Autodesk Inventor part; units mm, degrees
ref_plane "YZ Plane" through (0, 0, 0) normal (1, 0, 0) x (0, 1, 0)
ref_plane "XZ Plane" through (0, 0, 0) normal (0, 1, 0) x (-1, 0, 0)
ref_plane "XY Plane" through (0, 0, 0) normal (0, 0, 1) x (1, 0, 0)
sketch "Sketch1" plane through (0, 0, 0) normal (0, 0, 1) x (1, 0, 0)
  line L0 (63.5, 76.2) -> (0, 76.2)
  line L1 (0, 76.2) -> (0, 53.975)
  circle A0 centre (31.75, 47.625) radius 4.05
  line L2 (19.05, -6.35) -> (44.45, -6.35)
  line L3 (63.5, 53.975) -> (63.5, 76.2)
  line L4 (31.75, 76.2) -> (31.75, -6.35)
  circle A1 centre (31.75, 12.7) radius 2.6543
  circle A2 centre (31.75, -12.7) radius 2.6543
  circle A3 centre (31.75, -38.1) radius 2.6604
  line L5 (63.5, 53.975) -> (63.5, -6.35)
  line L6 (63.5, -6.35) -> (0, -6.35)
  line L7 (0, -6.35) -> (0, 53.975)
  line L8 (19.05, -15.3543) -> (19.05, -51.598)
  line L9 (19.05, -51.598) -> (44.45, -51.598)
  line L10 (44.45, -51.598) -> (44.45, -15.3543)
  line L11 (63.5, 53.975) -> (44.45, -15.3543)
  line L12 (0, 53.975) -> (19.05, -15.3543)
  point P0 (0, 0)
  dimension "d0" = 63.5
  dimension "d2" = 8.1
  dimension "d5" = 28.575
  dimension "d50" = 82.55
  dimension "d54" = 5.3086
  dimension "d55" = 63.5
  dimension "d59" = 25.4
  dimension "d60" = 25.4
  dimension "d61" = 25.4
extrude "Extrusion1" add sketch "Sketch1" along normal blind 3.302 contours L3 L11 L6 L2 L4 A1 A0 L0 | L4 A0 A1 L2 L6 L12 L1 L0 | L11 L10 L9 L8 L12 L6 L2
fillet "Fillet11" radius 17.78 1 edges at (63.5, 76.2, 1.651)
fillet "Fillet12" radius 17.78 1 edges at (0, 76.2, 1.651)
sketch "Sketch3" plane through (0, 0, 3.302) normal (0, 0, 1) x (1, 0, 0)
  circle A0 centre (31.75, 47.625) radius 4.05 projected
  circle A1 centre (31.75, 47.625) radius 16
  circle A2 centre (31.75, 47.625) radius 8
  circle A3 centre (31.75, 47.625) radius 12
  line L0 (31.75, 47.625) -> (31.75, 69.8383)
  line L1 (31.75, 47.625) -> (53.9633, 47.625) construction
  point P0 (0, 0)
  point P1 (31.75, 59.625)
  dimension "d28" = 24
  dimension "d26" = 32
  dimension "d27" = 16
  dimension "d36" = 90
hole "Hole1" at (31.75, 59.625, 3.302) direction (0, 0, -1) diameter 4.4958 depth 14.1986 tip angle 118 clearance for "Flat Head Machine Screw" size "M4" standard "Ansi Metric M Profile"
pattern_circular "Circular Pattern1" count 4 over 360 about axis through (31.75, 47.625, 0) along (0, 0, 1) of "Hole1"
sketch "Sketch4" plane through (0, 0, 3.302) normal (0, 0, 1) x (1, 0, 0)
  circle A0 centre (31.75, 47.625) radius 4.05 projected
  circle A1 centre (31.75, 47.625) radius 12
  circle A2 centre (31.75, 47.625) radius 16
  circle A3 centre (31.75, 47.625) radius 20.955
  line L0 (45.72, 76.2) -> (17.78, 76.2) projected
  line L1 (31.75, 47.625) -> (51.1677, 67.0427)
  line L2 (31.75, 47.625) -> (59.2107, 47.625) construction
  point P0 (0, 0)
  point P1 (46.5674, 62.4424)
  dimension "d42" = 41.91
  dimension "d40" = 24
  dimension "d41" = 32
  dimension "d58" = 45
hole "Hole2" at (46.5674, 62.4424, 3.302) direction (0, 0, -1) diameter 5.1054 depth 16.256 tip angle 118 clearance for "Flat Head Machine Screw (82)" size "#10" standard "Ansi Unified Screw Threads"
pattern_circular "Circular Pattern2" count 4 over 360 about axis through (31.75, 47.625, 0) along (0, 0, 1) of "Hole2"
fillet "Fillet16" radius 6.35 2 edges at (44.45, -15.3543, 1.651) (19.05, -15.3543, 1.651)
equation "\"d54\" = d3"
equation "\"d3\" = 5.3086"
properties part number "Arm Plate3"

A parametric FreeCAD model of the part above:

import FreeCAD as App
import Part
import Sketcher
from FreeCAD import Vector
Q = App.Units.Quantity


def edges_at(feature, points):
    """Names of the edges that pass closest to the given points."""
    edges = feature.Shape.Edges
    near = lambda p: min(range(len(edges)), key=lambda i: edges[i].distToShape(Part.Vertex(*p))[0])
    return sorted({f"Edge{near(p) + 1}" for p in points})


def add_polygon(sketch, points):
    """Adds a closed chain of lines whose ends are joined by coincident constraints."""
    first, n = sketch.GeometryCount, len(points)
    for a, b in zip(points, points[1:] + points[:1]):
        sketch.addGeometry(Part.LineSegment(App.Vector(*a, 0), App.Vector(*b, 0)), False)
    for i in range(n):
        sketch.addConstraint(Sketcher.Constraint("Coincident", first + i, 2, first + (i + 1) % n, 1))

doc = App.newDocument("Part")
body = doc.addObject("PartDesign::Body", "Body")

# Sketch on XY plane
sketch1 = doc.addObject("Sketcher::SketchObject", "Sketch")
body.addObject(sketch1)
sketch1.AttachmentSupport = (doc.XY_Plane, [""])
sketch1.MapMode = "FlatFace"
add_polygon(sketch1, [(63.5, 53.975), (63.5, 76.2), (0, 76.2), (0, 53.975), (19.05, -15.3543), (19.05, -51.598), (44.45, -51.598), (44.45, -15.3543)])  # lines 0-7
sketch1.addGeometry(Part.Circle(Vector(31.75, 12.7, 0), Vector(0, 0, 1), 2.6543), False)  # 8
sketch1.addGeometry(Part.Circle(Vector(31.75, 47.625, 0), Vector(0, 0, 1), 4.05), False)  # 9
sketch1.addGeometry(Part.Circle(Vector(31.75, -38.1, 0), Vector(0, 0, 1), 2.6604), False)  # 10
sketch1.addGeometry(Part.Circle(Vector(31.75, -12.7, 0), Vector(0, 0, 1), 2.6543), False)  # 11
sketch1.addConstraint(Sketcher.Constraint("Vertical", 0))
sketch1.addConstraint(Sketcher.Constraint("Horizontal", 1))
sketch1.addConstraint(Sketcher.Constraint("Vertical", 2))
sketch1.addConstraint(Sketcher.Constraint("Vertical", 4))
sketch1.addConstraint(Sketcher.Constraint("Horizontal", 5))
sketch1.addConstraint(Sketcher.Constraint("Vertical", 6))
sketch1.addConstraint(Sketcher.Constraint("Equal", 8, 11))
sketch1.addConstraint(Sketcher.Constraint("Symmetric", 8, 3, 11, 3, -1))
sketch1.addConstraint(Sketcher.Constraint("PointOnObject", 1, 2, -2))
sketch1.addConstraint(Sketcher.Constraint("Horizontal", 3, 2, 6, 2))
sketch1.addConstraint(Sketcher.Constraint("Horizontal", 2, 2, 7, 2))
sketch1.addConstraint(Sketcher.Constraint("Vertical", 8, 3, 9, 3))
sketch1.addConstraint(Sketcher.Constraint("Vertical", 9, 3, 10, 3))
sketch1.addConstraint(Sketcher.Constraint("Equal", 3, 7))
sketch1.addConstraint(Sketcher.Constraint("DistanceX", 5, 1, 5, 2, Q("1 in")))
sketch1.addConstraint(Sketcher.Constraint("Diameter", 8, Q("0.209 in")))
sketch1.addConstraint(Sketcher.Constraint("DistanceX", 1, 2, 1, 1, Q("2.5 in")))
sketch1.addConstraint(Sketcher.Constraint("DistanceY", 11, 3, 8, 3, Q("1 in")))
sketch1.addConstraint(Sketcher.Constraint("DistanceY", 10, 3, 11, 3, Q("1 in")))
sketch1.addConstraint(Sketcher.Constraint("Diameter", 9, Q("0.3189 in")))
sketch1.addConstraint(Sketcher.Constraint("DistanceY", 8, 3, 0, 2, Q("2.5 in")))
sketch1.addConstraint(Sketcher.Constraint("DistanceY", 9, 3, 0, 2, Q("1.125 in")))
sketch1.addConstraint(Sketcher.Constraint("DistanceX", 3, 2, 11, 3, Q("0.5 in")))
sketch1.addConstraint(Sketcher.Constraint("Diameter", 10, Q("5.3208 mm")))
sketch1.addConstraint(Sketcher.Constraint("DistanceY", 0, 1, 0, 2, Q("0.875 in")))
sketch1.addConstraint(Sketcher.Constraint("DistanceY", 4, 2, 4, 1, Q("36.2437 mm")))
sketch1.addConstraint(Sketcher.Constraint("DistanceY", 3, 2, -1, 1, Q("0.6045 in")))
pad1 = doc.addObject("PartDesign::Pad", "Pad")
body.addObject(pad1)
pad1.Profile = sketch1
pad1.Length = Q("0.13 in")
doc.recompute()

fillet = doc.addObject("PartDesign::Fillet", "Fillet")
body.addObject(fillet)
fillet.Base = (pad1, edges_at(pad1, [(63.5, 76.2, 1.651)]))
fillet.Radius = Q("0.7 in")
doc.recompute()

fillet2 = doc.addObject("PartDesign::Fillet", "Fillet001")
body.addObject(fillet2)
fillet2.Base = (fillet, edges_at(fillet, [(0, 76.2, 1.651)]))
fillet2.Radius = Q("0.7 in")

# Sketch on XY plane
sketch2 = doc.addObject("Sketcher::SketchObject", "Sketch001")
body.addObject(sketch2)
sketch2.AttachmentSupport = (doc.XY_Plane, [""])
sketch2.MapMode = "FlatFace"
sketch2.AttachmentOffset = App.Placement(Vector(0, 0, 0.13 * 25.4), App.Rotation())
sketch2.addGeometry(Part.Circle(Vector(31.75, 59.625, 0), Vector(0, 0, 1), 2.2479), False)
sketch2.addConstraint(Sketcher.Constraint("Diameter", 0, Q("0.177 in")))
sketch2.addConstraint(Sketcher.Constraint("DistanceX", -1, 1, 0, 3, Q("1.25 in")))
sketch2.addConstraint(Sketcher.Constraint("DistanceY", -1, 1, 0, 3, Q("59.625 mm")))
doc.recompute()
hole = doc.addObject("PartDesign::Hole", "Hole")
body.addObject(hole)
hole.Profile = sketch2
hole.ThreadType = "None"
hole.Diameter = Q("0.177 in")
hole.DepthType = "Dimension"
hole.Depth = Q("0.559 in")
hole.DrillPoint = "Angled"
hole.DrillPointAngle = 118
doc.recompute()

datumline = doc.addObject("PartDesign::Line", "DatumLine")
body.addObject(datumline)
datumline.Placement = App.Placement(Vector(31.75, 47.625, 0), App.Rotation(Vector(0, 0, 1), Vector(0, 0, 1)))
polarpattern = doc.addObject("PartDesign::PolarPattern", "PolarPattern")
body.addObject(polarpattern)
polarpattern.Originals = [hole]
polarpattern.Axis = (datumline, [""])
polarpattern.Angle = 360
polarpattern.Occurrences = 4
body.Tip = polarpattern

# Sketch on XY plane
sketch3 = doc.addObject("Sketcher::SketchObject", "Sketch002")
body.addObject(sketch3)
sketch3.AttachmentSupport = (doc.XY_Plane, [""])
sketch3.MapMode = "FlatFace"
sketch3.AttachmentOffset = App.Placement(Vector(0, 0, 0.13 * 25.4), App.Rotation())
sketch3.addGeometry(Part.Circle(Vector(46.5674, 62.4424, 0), Vector(0, 0, 1), 2.5527), False)
sketch3.addConstraint(Sketcher.Constraint("Diameter", 0, Q("0.201 in")))
sketch3.addConstraint(Sketcher.Constraint("DistanceX", -1, 1, 0, 3, Q("46.5674 mm")))
sketch3.addConstraint(Sketcher.Constraint("DistanceY", -1, 1, 0, 3, Q("62.4424 mm")))
doc.recompute()
hole2 = doc.addObject("PartDesign::Hole", "Hole001")
body.addObject(hole2)
hole2.Profile = sketch3
hole2.ThreadType = "None"
hole2.Diameter = Q("0.201 in")
hole2.DepthType = "Dimension"
hole2.Depth = Q("0.64 in")
hole2.DrillPoint = "Angled"
hole2.DrillPointAngle = 118
doc.recompute()

datumline2 = doc.addObject("PartDesign::Line", "DatumLine001")
body.addObject(datumline2)
datumline2.Placement = App.Placement(Vector(31.75, 47.625, 0), App.Rotation(Vector(0, 0, 1), Vector(0, 0, 1)))
polarpattern2 = doc.addObject("PartDesign::PolarPattern", "PolarPattern001")
body.addObject(polarpattern2)
polarpattern2.Originals = [hole2]
polarpattern2.Axis = (datumline2, [""])
polarpattern2.Angle = 360
polarpattern2.Occurrences = 4
body.Tip = polarpattern2
doc.recompute()

fillet3 = doc.addObject("PartDesign::Fillet", "Fillet002")
body.addObject(fillet3)
fillet3.Base = (polarpattern2, edges_at(polarpattern2, [(44.45, -15.354, 1.651), (19.05, -15.354, 1.651)]))
fillet3.Radius = Q("0.25 in")

doc.recompute()
